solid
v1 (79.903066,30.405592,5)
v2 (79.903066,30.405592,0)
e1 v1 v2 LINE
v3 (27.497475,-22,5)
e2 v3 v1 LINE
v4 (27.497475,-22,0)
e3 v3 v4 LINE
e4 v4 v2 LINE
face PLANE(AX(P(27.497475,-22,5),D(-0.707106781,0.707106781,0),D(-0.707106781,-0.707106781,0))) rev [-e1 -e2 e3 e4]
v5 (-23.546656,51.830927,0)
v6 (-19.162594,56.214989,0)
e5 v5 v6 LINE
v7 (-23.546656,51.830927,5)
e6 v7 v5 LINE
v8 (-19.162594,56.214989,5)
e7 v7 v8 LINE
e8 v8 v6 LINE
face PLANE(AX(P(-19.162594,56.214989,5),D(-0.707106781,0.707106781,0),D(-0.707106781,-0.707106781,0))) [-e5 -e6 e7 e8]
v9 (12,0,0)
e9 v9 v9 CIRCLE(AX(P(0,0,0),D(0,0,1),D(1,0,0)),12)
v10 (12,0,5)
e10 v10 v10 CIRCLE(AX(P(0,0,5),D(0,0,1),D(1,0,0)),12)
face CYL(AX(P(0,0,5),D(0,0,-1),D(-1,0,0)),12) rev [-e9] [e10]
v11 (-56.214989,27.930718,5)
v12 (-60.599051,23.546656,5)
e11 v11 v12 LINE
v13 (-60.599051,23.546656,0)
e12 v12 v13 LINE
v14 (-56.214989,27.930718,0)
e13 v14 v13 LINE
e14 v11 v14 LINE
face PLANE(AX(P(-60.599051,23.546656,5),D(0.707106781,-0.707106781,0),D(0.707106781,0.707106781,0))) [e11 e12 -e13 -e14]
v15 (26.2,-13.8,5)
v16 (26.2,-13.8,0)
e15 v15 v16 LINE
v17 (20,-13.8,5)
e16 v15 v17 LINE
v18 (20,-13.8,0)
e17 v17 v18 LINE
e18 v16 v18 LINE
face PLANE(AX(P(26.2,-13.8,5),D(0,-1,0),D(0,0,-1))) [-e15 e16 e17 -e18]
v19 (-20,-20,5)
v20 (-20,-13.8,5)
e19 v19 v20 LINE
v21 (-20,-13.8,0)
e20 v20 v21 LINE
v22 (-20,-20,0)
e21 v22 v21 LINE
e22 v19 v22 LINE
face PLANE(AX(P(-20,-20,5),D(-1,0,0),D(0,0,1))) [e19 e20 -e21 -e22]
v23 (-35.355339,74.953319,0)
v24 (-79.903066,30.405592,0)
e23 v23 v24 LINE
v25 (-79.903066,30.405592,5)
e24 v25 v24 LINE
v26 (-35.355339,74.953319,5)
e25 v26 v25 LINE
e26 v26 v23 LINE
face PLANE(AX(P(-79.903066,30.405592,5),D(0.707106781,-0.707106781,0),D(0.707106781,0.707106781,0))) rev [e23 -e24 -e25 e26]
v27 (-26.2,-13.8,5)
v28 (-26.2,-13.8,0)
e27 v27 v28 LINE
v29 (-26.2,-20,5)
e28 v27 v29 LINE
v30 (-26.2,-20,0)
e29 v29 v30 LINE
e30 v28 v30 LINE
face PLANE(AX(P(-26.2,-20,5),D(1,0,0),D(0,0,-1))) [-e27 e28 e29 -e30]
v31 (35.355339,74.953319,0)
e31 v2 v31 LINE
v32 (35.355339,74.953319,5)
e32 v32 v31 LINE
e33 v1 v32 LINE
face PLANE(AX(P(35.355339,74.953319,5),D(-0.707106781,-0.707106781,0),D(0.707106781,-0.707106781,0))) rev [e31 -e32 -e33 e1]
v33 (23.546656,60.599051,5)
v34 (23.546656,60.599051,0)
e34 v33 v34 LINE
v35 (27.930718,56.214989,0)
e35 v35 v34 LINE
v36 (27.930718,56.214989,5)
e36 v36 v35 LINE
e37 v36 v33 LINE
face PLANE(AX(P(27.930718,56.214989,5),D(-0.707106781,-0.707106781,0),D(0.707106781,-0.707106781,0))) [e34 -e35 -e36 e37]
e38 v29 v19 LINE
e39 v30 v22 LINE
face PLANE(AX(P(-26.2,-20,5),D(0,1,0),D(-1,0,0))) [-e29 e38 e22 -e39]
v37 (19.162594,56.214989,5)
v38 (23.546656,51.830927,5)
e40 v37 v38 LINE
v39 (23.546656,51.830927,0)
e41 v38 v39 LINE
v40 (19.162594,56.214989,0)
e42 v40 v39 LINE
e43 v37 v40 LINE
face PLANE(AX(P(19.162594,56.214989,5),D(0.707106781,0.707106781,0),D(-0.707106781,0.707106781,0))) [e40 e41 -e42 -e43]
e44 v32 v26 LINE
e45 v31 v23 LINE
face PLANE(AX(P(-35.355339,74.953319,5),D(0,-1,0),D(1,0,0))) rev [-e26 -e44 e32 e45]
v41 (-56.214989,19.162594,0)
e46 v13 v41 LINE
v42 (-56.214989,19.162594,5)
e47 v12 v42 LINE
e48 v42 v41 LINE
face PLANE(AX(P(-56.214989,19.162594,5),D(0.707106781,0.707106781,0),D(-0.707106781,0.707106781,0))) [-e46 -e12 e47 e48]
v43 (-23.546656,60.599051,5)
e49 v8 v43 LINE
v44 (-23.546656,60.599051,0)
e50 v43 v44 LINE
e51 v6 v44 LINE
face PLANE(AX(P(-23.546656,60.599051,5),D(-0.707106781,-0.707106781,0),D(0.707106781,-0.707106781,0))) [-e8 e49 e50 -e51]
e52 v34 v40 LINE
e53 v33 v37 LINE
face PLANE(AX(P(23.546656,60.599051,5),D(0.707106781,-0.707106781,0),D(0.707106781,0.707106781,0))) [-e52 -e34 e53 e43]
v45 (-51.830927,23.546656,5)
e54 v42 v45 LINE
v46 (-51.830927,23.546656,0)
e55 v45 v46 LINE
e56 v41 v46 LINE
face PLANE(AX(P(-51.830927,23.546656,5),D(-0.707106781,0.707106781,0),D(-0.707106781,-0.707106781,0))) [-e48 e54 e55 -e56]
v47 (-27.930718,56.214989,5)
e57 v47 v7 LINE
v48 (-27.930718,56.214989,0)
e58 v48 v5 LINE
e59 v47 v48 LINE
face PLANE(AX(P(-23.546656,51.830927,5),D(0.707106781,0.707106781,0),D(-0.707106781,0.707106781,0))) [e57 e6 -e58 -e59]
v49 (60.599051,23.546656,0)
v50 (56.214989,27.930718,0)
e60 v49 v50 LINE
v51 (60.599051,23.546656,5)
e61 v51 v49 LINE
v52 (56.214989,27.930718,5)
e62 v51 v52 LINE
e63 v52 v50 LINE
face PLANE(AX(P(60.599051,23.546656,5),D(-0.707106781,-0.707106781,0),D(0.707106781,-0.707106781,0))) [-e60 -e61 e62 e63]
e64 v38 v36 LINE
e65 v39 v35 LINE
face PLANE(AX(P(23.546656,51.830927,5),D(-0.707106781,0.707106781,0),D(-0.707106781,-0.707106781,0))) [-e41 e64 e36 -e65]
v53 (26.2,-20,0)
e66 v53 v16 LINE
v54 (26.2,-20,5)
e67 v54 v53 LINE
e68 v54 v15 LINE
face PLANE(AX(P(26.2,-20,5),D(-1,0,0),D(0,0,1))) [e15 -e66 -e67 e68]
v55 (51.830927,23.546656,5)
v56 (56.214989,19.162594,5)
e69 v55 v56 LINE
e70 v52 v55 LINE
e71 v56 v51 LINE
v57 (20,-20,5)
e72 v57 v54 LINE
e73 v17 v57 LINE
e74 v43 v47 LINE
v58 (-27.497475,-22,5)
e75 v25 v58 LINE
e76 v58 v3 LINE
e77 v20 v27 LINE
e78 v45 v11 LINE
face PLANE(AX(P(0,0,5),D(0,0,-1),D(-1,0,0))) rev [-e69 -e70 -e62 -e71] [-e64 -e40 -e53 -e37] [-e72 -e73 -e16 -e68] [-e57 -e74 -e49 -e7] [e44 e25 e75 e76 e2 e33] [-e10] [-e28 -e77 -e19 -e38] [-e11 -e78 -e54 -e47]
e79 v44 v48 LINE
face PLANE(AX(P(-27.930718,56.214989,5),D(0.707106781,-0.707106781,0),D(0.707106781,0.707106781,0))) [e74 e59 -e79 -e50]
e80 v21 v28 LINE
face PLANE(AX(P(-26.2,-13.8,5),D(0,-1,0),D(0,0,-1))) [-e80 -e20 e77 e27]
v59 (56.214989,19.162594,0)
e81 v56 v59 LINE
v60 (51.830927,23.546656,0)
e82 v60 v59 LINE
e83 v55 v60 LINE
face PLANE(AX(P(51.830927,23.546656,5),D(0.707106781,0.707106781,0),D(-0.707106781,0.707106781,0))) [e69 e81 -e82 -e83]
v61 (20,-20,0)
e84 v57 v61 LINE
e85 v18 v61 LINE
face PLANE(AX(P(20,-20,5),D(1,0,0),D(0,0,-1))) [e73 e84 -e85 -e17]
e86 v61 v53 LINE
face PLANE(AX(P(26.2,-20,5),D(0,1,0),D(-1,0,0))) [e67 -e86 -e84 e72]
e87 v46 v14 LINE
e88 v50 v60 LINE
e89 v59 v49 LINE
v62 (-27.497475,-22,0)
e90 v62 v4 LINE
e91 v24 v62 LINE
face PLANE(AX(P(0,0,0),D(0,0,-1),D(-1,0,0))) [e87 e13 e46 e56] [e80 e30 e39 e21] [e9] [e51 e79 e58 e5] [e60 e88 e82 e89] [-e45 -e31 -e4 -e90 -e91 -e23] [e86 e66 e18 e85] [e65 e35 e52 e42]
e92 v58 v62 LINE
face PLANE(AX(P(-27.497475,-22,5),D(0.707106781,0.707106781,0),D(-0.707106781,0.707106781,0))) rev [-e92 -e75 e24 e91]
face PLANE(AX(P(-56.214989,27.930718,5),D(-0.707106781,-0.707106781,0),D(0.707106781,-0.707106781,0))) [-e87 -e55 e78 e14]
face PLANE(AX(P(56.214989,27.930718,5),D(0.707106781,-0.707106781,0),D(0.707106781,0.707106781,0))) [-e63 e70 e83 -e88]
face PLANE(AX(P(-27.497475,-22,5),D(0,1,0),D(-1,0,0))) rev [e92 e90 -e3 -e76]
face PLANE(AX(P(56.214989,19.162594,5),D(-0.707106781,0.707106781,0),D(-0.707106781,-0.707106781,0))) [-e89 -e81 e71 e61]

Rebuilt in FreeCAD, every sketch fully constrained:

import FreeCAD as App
import Part
import Sketcher

V = App.Vector

doc = App.newDocument("Part")
body = doc.addObject("PartDesign::Body", "Body")

sketch1 = body.newObject("Sketcher::SketchObject", "Sketch")
sketch1.AttachmentSupport = (doc.getObject("XY_Plane"), [""])
sketch1.MapMode = "FlatFace"
sketch1.addGeometry([
    Part.LineSegment(V(-35.355339, 74.953319, 0), V(-79.903066, 30.405592, 0)),
    Part.LineSegment(V(-79.903066, 30.405592, 0), V(-27.497475, -22, 0)),
    Part.LineSegment(V(-27.497475, -22, 0), V(27.497475, -22, 0)),
    Part.LineSegment(V(27.497475, -22, 0), V(79.903066, 30.405592, 0)),
    Part.LineSegment(V(79.903066, 30.405592, 0), V(35.355339, 74.953319, 0)),
    Part.LineSegment(V(35.355339, 74.953319, 0), V(-35.355339, 74.953319, 0)),
    Part.LineSegment(V(20, -20, 0), V(20, -13.8, 0)),
    Part.LineSegment(V(20, -13.8, 0), V(26.2, -13.8, 0)),
    Part.LineSegment(V(26.2, -13.8, 0), V(26.2, -20, 0)),
    Part.LineSegment(V(26.2, -20, 0), V(20, -20, 0)),
    Part.Circle(V(0, 0, 0), V(0, 0, 1), 12),
    Part.LineSegment(V(-26.2, -20, 0), V(-26.2, -13.8, 0)),
    Part.LineSegment(V(-26.2, -13.8, 0), V(-20, -13.8, 0)),
    Part.LineSegment(V(-20, -13.8, 0), V(-20, -20, 0)),
    Part.LineSegment(V(-20, -20, 0), V(-26.2, -20, 0)),
    Part.LineSegment(V(51.830927, 23.546656, 0), V(56.214989, 27.930718, 0)),
    Part.LineSegment(V(56.214989, 27.930718, 0), V(60.599051, 23.546656, 0)),
    Part.LineSegment(V(60.599051, 23.546656, 0), V(56.214989, 19.162594, 0)),
    Part.LineSegment(V(56.214989, 19.162594, 0), V(51.830927, 23.546656, 0)),
    Part.LineSegment(V(19.162594, 56.214989, 0), V(23.546656, 60.599051, 0)),
    Part.LineSegment(V(23.546656, 60.599051, 0), V(27.930718, 56.214989, 0)),
    Part.LineSegment(V(27.930718, 56.214989, 0), V(23.546656, 51.830927, 0)),
    Part.LineSegment(V(23.546656, 51.830927, 0), V(19.162594, 56.214989, 0)),
    Part.LineSegment(V(-60.599051, 23.546656, 0), V(-56.214989, 27.930718, 0)),
    Part.LineSegment(V(-56.214989, 27.930718, 0), V(-51.830927, 23.546656, 0)),
    Part.LineSegment(V(-51.830927, 23.546656, 0), V(-56.214989, 19.162594, 0)),
    Part.LineSegment(V(-56.214989, 19.162594, 0), V(-60.599051, 23.546656, 0)),
    Part.LineSegment(V(-27.930718, 56.214989, 0), V(-23.546656, 60.599051, 0)),
    Part.LineSegment(V(-23.546656, 60.599051, 0), V(-19.162594, 56.214989, 0)),
    Part.LineSegment(V(-19.162594, 56.214989, 0), V(-23.546656, 51.830927, 0)),
    Part.LineSegment(V(-23.546656, 51.830927, 0), V(-27.930718, 56.214989, 0)),
], False)
sketch1.addConstraint([
    Sketcher.Constraint("Coincident", 0, 2, 1, 1),
    Sketcher.Constraint("Coincident", 1, 2, 2, 1),
    Sketcher.Constraint("Coincident", 2, 2, 3, 1),
    Sketcher.Constraint("Coincident", 3, 2, 4, 1),
    Sketcher.Constraint("Coincident", 4, 2, 5, 1),
    Sketcher.Constraint("Coincident", 5, 2, 0, 1),
    Sketcher.Constraint("Coincident", 6, 2, 7, 1),
    Sketcher.Constraint("Coincident", 7, 2, 8, 1),
    Sketcher.Constraint("Coincident", 8, 2, 9, 1),
    Sketcher.Constraint("Coincident", 9, 2, 6, 1),
    Sketcher.Constraint("Coincident", 11, 2, 12, 1),
    Sketcher.Constraint("Coincident", 12, 2, 13, 1),
    Sketcher.Constraint("Coincident", 13, 2, 14, 1),
    Sketcher.Constraint("Coincident", 14, 2, 11, 1),
    Sketcher.Constraint("Coincident", 15, 2, 16, 1),
    Sketcher.Constraint("Coincident", 16, 2, 17, 1),
    Sketcher.Constraint("Coincident", 17, 2, 18, 1),
    Sketcher.Constraint("Coincident", 18, 2, 15, 1),
    Sketcher.Constraint("Coincident", 19, 2, 20, 1),
    Sketcher.Constraint("Coincident", 20, 2, 21, 1),
    Sketcher.Constraint("Coincident", 21, 2, 22, 1),
    Sketcher.Constraint("Coincident", 22, 2, 19, 1),
    Sketcher.Constraint("Coincident", 23, 2, 24, 1),
    Sketcher.Constraint("Coincident", 24, 2, 25, 1),
    Sketcher.Constraint("Coincident", 25, 2, 26, 1),
    Sketcher.Constraint("Coincident", 26, 2, 23, 1),
    Sketcher.Constraint("Coincident", 27, 2, 28, 1),
    Sketcher.Constraint("Coincident", 28, 2, 29, 1),
    Sketcher.Constraint("Coincident", 29, 2, 30, 1),
    Sketcher.Constraint("Coincident", 30, 2, 27, 1),
    Sketcher.Constraint("Horizontal", 2),
    Sketcher.Constraint("Horizontal", 5),
    Sketcher.Constraint("Vertical", 6),
    Sketcher.Constraint("Horizontal", 7),
    Sketcher.Constraint("Vertical", 8),
    Sketcher.Constraint("Horizontal", 9),
    Sketcher.Constraint("Vertical", 11),
    Sketcher.Constraint("Horizontal", 12),
    Sketcher.Constraint("Vertical", 13),
    Sketcher.Constraint("Horizontal", 14),
    Sketcher.Constraint("Coincident", 10, 3, -1, 1),
    Sketcher.Constraint("Symmetric", 0, 2, 3, 2, -2),
    Sketcher.Constraint("Symmetric", 7, 2, 11, 2, -2),
    Sketcher.Constraint("Symmetric", 9, 2, 13, 2, -2),
    Sketcher.Constraint("Symmetric", 15, 2, 23, 2, -2),
    Sketcher.Constraint("Symmetric", 18, 2, 24, 2, -2),
    Sketcher.Constraint("Symmetric", 17, 2, 25, 2, -2),
    Sketcher.Constraint("Symmetric", 16, 2, 26, 2, -2),
    Sketcher.Constraint("Symmetric", 19, 2, 27, 2, -2),
    Sketcher.Constraint("Symmetric", 22, 2, 28, 2, -2),
    Sketcher.Constraint("Symmetric", 21, 2, 29, 2, -2),
    Sketcher.Constraint("Symmetric", 20, 2, 30, 2, -2),
    Sketcher.Constraint("Perpendicular", 0, 1),
    Sketcher.Constraint("Perpendicular", 1, 3),
    Sketcher.Constraint("Perpendicular", 3, 4),
    Sketcher.Constraint("Perpendicular", 4, 15),
    Sketcher.Constraint("Perpendicular", 15, 16),
    Sketcher.Constraint("Perpendicular", 16, 17),
    Sketcher.Constraint("Perpendicular", 17, 18),
    Sketcher.Constraint("Perpendicular", 18, 19),
    Sketcher.Constraint("Perpendicular", 19, 20),
    Sketcher.Constraint("Perpendicular", 20, 21),
    Sketcher.Constraint("Perpendicular", 21, 22),
    Sketcher.Constraint("Perpendicular", 22, 23),
    Sketcher.Constraint("Horizontal", 16, 2, 18, 2),
    Sketcher.Constraint("Horizontal", 20, 2, 22, 2),
    Sketcher.Constraint("Equal", 14, 6),
    Sketcher.Constraint("Equal", 18, 19),
    Sketcher.Constraint("Diameter", 10, 24.0),
    Sketcher.Constraint("Distance", 0, 63.0),
    Sketcher.Constraint("DistanceX", 7, 1, 7, 2, 6.2),
    Sketcher.Constraint("DistanceY", 1, 2, -1, 1, 22.0),
    Sketcher.Constraint("DistanceX", -1, 1, 6, 2, 20.0),
    Sketcher.Constraint("DistanceY", 8, 2, -1, 1, 20.0),
    Sketcher.Constraint("Distance", 15, 6.2),
    Sketcher.Constraint("Distance", 1, 74.112698),
    Sketcher.Constraint("DistanceX", 2, 1, 2, 2, 54.994949),
    Sketcher.Constraint("DistanceY", 15, 2, 4, 2, 47.022601),
    Sketcher.Constraint("DistanceX", -1, 1, 15, 2, 56.214989),
    Sketcher.Constraint("DistanceY", -1, 1, 19, 2, 60.599051),
    Sketcher.Constraint("DistanceX", 19, 2, 18, 2, 28.284271),
])
pad1 = body.newObject("PartDesign::Pad", "Pad")
pad1.Profile = sketch1
pad1.Length = 5

doc.recompute()
